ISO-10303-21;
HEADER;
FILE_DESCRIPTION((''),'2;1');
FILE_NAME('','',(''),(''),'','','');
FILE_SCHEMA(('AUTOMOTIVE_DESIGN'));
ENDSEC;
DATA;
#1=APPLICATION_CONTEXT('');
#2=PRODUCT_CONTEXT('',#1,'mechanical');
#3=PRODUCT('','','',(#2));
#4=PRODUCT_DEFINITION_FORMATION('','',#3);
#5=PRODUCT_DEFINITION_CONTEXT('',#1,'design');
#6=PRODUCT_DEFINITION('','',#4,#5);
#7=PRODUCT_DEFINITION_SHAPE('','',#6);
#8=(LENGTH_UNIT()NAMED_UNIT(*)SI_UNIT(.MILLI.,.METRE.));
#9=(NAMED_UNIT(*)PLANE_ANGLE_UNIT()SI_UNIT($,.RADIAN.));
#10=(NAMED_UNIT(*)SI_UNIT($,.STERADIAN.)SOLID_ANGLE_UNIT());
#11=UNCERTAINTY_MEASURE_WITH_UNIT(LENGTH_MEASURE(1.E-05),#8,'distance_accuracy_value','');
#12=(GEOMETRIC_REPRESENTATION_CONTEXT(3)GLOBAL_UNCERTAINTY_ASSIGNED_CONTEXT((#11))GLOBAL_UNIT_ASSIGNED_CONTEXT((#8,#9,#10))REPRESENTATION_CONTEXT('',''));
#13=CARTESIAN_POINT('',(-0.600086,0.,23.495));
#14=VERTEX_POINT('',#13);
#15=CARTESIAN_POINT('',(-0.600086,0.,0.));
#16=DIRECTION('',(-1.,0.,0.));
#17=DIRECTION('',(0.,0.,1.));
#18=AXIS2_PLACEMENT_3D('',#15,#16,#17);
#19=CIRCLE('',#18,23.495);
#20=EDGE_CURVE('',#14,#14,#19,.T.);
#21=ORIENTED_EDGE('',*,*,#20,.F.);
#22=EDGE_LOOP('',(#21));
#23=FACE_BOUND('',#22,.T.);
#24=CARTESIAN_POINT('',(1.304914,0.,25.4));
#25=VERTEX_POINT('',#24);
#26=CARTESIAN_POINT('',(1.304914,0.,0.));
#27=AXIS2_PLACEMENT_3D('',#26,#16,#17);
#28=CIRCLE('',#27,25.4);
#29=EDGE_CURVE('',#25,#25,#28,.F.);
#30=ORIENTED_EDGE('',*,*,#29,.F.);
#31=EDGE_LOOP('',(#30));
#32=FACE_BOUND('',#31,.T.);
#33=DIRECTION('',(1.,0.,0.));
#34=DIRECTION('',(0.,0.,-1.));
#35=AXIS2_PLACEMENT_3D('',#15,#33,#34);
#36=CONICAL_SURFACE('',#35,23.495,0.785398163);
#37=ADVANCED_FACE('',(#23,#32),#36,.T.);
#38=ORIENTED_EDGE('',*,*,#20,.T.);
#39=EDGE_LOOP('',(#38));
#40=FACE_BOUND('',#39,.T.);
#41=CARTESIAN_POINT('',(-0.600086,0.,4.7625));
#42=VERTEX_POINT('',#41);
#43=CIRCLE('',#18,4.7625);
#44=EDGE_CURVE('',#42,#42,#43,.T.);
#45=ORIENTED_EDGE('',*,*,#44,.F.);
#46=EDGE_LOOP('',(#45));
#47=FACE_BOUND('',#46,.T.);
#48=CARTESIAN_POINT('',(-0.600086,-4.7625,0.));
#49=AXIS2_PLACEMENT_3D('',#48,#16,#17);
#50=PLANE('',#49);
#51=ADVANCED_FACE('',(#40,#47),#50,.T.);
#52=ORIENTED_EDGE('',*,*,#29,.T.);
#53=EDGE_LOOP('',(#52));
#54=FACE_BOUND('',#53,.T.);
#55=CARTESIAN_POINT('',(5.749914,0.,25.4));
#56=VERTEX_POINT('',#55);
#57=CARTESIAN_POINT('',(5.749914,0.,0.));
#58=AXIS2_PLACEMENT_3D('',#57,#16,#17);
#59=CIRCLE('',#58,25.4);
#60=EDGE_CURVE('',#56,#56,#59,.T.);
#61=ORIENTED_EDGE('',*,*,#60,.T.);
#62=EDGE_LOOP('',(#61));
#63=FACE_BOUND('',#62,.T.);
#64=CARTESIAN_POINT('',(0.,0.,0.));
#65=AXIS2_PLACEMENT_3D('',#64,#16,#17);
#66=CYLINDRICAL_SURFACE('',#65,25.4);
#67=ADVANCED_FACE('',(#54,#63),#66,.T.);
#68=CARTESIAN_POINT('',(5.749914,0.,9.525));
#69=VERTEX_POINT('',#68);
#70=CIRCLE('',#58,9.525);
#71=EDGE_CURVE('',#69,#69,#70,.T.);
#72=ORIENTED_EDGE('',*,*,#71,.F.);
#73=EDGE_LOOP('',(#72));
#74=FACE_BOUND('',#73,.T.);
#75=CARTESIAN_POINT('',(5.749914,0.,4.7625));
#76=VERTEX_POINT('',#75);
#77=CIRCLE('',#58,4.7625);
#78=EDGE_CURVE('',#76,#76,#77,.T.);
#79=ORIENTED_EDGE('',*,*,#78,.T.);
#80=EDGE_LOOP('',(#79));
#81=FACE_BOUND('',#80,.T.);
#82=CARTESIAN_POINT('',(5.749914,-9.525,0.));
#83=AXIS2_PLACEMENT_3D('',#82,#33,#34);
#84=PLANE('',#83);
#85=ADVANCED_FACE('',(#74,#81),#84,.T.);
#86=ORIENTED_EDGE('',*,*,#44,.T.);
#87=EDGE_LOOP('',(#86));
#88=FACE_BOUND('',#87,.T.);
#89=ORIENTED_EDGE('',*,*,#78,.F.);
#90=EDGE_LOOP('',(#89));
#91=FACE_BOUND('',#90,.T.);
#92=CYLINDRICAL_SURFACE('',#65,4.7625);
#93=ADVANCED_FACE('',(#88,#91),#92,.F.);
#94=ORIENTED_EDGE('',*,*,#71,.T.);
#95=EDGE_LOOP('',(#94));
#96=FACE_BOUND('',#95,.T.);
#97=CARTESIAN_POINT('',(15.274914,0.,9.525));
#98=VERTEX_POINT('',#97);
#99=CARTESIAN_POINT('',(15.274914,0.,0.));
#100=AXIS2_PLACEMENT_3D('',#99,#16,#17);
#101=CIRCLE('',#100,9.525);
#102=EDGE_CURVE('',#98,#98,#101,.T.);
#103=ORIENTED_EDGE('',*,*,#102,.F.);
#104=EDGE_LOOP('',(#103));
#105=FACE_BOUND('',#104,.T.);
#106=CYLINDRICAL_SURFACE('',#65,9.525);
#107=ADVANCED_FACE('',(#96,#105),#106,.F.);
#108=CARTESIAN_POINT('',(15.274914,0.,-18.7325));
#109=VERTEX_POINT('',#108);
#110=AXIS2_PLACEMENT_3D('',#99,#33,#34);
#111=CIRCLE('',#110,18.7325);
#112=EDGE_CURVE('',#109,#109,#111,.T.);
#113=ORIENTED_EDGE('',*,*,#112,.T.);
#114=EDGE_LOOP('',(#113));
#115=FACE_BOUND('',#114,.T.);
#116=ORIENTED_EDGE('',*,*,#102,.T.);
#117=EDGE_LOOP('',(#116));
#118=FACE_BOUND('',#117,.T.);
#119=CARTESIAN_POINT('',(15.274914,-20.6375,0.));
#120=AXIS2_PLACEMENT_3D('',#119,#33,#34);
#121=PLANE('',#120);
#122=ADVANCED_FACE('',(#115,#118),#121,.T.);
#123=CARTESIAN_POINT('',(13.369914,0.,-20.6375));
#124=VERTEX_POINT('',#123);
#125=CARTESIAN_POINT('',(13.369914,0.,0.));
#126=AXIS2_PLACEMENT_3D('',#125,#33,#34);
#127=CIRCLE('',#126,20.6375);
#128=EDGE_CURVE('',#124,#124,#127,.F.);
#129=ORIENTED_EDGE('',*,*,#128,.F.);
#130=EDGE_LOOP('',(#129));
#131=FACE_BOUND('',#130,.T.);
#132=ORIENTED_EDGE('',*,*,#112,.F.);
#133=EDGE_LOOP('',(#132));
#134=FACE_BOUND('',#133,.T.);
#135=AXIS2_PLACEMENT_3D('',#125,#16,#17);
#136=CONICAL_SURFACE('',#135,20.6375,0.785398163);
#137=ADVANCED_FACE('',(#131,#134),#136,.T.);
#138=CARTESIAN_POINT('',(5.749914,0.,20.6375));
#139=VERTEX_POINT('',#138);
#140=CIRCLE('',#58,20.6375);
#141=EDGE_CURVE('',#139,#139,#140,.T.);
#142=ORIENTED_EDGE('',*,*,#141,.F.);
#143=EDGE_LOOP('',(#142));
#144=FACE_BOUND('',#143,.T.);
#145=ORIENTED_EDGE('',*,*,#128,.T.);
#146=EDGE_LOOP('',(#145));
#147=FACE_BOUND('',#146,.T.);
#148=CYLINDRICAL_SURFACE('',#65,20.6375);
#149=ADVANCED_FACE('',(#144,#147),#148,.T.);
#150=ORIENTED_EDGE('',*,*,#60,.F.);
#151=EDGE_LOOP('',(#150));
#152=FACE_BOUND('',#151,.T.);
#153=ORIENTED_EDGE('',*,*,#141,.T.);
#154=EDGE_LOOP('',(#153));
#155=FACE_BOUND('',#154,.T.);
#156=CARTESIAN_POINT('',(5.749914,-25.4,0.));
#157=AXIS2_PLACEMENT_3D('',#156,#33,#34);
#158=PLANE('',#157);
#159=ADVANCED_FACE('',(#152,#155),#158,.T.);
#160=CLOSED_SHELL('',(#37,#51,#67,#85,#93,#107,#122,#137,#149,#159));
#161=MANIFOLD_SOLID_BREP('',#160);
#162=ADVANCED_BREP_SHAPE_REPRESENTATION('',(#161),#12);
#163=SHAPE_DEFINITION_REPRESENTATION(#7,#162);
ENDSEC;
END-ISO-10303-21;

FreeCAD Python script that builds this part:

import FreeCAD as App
import Part
import Sketcher
from FreeCAD import Vector
Q = App.Units.Quantity


def edges_at(feature, points):
    """Names of the edges that pass closest to the given points."""
    edges = feature.Shape.Edges
    near = lambda p: min(range(len(edges)), key=lambda i: edges[i].distToShape(Part.Vertex(*p))[0])
    return sorted({f"Edge{near(p) + 1}" for p in points})

doc = App.newDocument("Part")
body = doc.addObject("PartDesign::Body", "Body")

sketch1 = doc.addObject("Sketcher::SketchObject", "Sketch")
body.addObject(sketch1)
sketch1.AttachmentSupport = (doc.XY_Plane, [""])
sketch1.MapMode = "FlatFace"
sketch1.addGeometry(Part.LineSegment(Vector(-0.6, -4.8, 0), Vector(-0.6, -25.4, 0)), False)
sketch1.addGeometry(Part.LineSegment(Vector(-0.6, -25.4, 0), Vector(5.7, -25.4, 0)), False)
sketch1.addGeometry(Part.LineSegment(Vector(5.7, -25.4, 0), Vector(5.7, -20.6, 0)), False)
sketch1.addGeometry(Part.LineSegment(Vector(5.7, -20.6, 0), Vector(15.3, -20.6, 0)), False)
sketch1.addGeometry(Part.LineSegment(Vector(15.3, -20.6, 0), Vector(15.3, -9.5, 0)), False)
sketch1.addGeometry(Part.LineSegment(Vector(15.3, -9.5, 0), Vector(5.7, -9.5, 0)), False)
sketch1.addGeometry(Part.LineSegment(Vector(5.7, -9.5, 0), Vector(5.7, -4.8, 0)), False)
sketch1.addGeometry(Part.LineSegment(Vector(5.7, -4.8, 0), Vector(-0.6, -4.8, 0)), False)
sketch1.addConstraint(Sketcher.Constraint("Coincident", 0, 2, 1, 1))
sketch1.addConstraint(Sketcher.Constraint("Coincident", 1, 2, 2, 1))
sketch1.addConstraint(Sketcher.Constraint("Coincident", 2, 2, 3, 1))
sketch1.addConstraint(Sketcher.Constraint("Coincident", 3, 2, 4, 1))
sketch1.addConstraint(Sketcher.Constraint("Coincident", 4, 2, 5, 1))
sketch1.addConstraint(Sketcher.Constraint("Coincident", 5, 2, 6, 1))
sketch1.addConstraint(Sketcher.Constraint("Coincident", 6, 2, 7, 1))
sketch1.addConstraint(Sketcher.Constraint("Coincident", 7, 2, 0, 1))
sketch1.addConstraint(Sketcher.Constraint("Vertical", 0))
sketch1.addConstraint(Sketcher.Constraint("Horizontal", 1))
sketch1.addConstraint(Sketcher.Constraint("Vertical", 2))
sketch1.addConstraint(Sketcher.Constraint("Horizontal", 3))
sketch1.addConstraint(Sketcher.Constraint("Vertical", 4))
sketch1.addConstraint(Sketcher.Constraint("Horizontal", 5))
sketch1.addConstraint(Sketcher.Constraint("Vertical", 6))
sketch1.addConstraint(Sketcher.Constraint("Horizontal", 7))
sketch1.addConstraint(Sketcher.Constraint("Vertical", 2, 2, 5, 2))
sketch1.addConstraint(Sketcher.Constraint("Equal", 2, 6))
sketch1.addConstraint(Sketcher.Constraint("DistanceY", 0, 2, -1, 1, Q("1 in")))
sketch1.addConstraint(Sketcher.Constraint("DistanceX", 1, 1, 1, 2, Q("0.25 in")))
sketch1.addConstraint(Sketcher.Constraint("DistanceX", 3, 1, 3, 2, Q("0.375 in")))
sketch1.addConstraint(Sketcher.Constraint("DistanceY", 0, 2, 0, 1, Q("0.8125 in")))
sketch1.addConstraint(Sketcher.Constraint("DistanceY", 2, 1, 2, 2, Q("0.1875 in")))
sketch1.addConstraint(Sketcher.Constraint("DistanceX", 0, 2, -1, 1, Q("0.600086 mm")))
revolution = doc.addObject("PartDesign::Revolution", "Revolution")
body.addObject(revolution)
revolution.Profile = sketch1
revolution.ReferenceAxis = (sketch1, ["H_Axis"])
revolution.Angle = 360
doc.recompute()

chamfer = doc.addObject("PartDesign::Chamfer", "Chamfer")
body.addObject(chamfer)
chamfer.Base = (revolution, edges_at(revolution, [(15.275, 0, -20.637), (-0.6, 0, -25.4)]))
chamfer.Size = Q("0.075 in")

doc.recompute()
